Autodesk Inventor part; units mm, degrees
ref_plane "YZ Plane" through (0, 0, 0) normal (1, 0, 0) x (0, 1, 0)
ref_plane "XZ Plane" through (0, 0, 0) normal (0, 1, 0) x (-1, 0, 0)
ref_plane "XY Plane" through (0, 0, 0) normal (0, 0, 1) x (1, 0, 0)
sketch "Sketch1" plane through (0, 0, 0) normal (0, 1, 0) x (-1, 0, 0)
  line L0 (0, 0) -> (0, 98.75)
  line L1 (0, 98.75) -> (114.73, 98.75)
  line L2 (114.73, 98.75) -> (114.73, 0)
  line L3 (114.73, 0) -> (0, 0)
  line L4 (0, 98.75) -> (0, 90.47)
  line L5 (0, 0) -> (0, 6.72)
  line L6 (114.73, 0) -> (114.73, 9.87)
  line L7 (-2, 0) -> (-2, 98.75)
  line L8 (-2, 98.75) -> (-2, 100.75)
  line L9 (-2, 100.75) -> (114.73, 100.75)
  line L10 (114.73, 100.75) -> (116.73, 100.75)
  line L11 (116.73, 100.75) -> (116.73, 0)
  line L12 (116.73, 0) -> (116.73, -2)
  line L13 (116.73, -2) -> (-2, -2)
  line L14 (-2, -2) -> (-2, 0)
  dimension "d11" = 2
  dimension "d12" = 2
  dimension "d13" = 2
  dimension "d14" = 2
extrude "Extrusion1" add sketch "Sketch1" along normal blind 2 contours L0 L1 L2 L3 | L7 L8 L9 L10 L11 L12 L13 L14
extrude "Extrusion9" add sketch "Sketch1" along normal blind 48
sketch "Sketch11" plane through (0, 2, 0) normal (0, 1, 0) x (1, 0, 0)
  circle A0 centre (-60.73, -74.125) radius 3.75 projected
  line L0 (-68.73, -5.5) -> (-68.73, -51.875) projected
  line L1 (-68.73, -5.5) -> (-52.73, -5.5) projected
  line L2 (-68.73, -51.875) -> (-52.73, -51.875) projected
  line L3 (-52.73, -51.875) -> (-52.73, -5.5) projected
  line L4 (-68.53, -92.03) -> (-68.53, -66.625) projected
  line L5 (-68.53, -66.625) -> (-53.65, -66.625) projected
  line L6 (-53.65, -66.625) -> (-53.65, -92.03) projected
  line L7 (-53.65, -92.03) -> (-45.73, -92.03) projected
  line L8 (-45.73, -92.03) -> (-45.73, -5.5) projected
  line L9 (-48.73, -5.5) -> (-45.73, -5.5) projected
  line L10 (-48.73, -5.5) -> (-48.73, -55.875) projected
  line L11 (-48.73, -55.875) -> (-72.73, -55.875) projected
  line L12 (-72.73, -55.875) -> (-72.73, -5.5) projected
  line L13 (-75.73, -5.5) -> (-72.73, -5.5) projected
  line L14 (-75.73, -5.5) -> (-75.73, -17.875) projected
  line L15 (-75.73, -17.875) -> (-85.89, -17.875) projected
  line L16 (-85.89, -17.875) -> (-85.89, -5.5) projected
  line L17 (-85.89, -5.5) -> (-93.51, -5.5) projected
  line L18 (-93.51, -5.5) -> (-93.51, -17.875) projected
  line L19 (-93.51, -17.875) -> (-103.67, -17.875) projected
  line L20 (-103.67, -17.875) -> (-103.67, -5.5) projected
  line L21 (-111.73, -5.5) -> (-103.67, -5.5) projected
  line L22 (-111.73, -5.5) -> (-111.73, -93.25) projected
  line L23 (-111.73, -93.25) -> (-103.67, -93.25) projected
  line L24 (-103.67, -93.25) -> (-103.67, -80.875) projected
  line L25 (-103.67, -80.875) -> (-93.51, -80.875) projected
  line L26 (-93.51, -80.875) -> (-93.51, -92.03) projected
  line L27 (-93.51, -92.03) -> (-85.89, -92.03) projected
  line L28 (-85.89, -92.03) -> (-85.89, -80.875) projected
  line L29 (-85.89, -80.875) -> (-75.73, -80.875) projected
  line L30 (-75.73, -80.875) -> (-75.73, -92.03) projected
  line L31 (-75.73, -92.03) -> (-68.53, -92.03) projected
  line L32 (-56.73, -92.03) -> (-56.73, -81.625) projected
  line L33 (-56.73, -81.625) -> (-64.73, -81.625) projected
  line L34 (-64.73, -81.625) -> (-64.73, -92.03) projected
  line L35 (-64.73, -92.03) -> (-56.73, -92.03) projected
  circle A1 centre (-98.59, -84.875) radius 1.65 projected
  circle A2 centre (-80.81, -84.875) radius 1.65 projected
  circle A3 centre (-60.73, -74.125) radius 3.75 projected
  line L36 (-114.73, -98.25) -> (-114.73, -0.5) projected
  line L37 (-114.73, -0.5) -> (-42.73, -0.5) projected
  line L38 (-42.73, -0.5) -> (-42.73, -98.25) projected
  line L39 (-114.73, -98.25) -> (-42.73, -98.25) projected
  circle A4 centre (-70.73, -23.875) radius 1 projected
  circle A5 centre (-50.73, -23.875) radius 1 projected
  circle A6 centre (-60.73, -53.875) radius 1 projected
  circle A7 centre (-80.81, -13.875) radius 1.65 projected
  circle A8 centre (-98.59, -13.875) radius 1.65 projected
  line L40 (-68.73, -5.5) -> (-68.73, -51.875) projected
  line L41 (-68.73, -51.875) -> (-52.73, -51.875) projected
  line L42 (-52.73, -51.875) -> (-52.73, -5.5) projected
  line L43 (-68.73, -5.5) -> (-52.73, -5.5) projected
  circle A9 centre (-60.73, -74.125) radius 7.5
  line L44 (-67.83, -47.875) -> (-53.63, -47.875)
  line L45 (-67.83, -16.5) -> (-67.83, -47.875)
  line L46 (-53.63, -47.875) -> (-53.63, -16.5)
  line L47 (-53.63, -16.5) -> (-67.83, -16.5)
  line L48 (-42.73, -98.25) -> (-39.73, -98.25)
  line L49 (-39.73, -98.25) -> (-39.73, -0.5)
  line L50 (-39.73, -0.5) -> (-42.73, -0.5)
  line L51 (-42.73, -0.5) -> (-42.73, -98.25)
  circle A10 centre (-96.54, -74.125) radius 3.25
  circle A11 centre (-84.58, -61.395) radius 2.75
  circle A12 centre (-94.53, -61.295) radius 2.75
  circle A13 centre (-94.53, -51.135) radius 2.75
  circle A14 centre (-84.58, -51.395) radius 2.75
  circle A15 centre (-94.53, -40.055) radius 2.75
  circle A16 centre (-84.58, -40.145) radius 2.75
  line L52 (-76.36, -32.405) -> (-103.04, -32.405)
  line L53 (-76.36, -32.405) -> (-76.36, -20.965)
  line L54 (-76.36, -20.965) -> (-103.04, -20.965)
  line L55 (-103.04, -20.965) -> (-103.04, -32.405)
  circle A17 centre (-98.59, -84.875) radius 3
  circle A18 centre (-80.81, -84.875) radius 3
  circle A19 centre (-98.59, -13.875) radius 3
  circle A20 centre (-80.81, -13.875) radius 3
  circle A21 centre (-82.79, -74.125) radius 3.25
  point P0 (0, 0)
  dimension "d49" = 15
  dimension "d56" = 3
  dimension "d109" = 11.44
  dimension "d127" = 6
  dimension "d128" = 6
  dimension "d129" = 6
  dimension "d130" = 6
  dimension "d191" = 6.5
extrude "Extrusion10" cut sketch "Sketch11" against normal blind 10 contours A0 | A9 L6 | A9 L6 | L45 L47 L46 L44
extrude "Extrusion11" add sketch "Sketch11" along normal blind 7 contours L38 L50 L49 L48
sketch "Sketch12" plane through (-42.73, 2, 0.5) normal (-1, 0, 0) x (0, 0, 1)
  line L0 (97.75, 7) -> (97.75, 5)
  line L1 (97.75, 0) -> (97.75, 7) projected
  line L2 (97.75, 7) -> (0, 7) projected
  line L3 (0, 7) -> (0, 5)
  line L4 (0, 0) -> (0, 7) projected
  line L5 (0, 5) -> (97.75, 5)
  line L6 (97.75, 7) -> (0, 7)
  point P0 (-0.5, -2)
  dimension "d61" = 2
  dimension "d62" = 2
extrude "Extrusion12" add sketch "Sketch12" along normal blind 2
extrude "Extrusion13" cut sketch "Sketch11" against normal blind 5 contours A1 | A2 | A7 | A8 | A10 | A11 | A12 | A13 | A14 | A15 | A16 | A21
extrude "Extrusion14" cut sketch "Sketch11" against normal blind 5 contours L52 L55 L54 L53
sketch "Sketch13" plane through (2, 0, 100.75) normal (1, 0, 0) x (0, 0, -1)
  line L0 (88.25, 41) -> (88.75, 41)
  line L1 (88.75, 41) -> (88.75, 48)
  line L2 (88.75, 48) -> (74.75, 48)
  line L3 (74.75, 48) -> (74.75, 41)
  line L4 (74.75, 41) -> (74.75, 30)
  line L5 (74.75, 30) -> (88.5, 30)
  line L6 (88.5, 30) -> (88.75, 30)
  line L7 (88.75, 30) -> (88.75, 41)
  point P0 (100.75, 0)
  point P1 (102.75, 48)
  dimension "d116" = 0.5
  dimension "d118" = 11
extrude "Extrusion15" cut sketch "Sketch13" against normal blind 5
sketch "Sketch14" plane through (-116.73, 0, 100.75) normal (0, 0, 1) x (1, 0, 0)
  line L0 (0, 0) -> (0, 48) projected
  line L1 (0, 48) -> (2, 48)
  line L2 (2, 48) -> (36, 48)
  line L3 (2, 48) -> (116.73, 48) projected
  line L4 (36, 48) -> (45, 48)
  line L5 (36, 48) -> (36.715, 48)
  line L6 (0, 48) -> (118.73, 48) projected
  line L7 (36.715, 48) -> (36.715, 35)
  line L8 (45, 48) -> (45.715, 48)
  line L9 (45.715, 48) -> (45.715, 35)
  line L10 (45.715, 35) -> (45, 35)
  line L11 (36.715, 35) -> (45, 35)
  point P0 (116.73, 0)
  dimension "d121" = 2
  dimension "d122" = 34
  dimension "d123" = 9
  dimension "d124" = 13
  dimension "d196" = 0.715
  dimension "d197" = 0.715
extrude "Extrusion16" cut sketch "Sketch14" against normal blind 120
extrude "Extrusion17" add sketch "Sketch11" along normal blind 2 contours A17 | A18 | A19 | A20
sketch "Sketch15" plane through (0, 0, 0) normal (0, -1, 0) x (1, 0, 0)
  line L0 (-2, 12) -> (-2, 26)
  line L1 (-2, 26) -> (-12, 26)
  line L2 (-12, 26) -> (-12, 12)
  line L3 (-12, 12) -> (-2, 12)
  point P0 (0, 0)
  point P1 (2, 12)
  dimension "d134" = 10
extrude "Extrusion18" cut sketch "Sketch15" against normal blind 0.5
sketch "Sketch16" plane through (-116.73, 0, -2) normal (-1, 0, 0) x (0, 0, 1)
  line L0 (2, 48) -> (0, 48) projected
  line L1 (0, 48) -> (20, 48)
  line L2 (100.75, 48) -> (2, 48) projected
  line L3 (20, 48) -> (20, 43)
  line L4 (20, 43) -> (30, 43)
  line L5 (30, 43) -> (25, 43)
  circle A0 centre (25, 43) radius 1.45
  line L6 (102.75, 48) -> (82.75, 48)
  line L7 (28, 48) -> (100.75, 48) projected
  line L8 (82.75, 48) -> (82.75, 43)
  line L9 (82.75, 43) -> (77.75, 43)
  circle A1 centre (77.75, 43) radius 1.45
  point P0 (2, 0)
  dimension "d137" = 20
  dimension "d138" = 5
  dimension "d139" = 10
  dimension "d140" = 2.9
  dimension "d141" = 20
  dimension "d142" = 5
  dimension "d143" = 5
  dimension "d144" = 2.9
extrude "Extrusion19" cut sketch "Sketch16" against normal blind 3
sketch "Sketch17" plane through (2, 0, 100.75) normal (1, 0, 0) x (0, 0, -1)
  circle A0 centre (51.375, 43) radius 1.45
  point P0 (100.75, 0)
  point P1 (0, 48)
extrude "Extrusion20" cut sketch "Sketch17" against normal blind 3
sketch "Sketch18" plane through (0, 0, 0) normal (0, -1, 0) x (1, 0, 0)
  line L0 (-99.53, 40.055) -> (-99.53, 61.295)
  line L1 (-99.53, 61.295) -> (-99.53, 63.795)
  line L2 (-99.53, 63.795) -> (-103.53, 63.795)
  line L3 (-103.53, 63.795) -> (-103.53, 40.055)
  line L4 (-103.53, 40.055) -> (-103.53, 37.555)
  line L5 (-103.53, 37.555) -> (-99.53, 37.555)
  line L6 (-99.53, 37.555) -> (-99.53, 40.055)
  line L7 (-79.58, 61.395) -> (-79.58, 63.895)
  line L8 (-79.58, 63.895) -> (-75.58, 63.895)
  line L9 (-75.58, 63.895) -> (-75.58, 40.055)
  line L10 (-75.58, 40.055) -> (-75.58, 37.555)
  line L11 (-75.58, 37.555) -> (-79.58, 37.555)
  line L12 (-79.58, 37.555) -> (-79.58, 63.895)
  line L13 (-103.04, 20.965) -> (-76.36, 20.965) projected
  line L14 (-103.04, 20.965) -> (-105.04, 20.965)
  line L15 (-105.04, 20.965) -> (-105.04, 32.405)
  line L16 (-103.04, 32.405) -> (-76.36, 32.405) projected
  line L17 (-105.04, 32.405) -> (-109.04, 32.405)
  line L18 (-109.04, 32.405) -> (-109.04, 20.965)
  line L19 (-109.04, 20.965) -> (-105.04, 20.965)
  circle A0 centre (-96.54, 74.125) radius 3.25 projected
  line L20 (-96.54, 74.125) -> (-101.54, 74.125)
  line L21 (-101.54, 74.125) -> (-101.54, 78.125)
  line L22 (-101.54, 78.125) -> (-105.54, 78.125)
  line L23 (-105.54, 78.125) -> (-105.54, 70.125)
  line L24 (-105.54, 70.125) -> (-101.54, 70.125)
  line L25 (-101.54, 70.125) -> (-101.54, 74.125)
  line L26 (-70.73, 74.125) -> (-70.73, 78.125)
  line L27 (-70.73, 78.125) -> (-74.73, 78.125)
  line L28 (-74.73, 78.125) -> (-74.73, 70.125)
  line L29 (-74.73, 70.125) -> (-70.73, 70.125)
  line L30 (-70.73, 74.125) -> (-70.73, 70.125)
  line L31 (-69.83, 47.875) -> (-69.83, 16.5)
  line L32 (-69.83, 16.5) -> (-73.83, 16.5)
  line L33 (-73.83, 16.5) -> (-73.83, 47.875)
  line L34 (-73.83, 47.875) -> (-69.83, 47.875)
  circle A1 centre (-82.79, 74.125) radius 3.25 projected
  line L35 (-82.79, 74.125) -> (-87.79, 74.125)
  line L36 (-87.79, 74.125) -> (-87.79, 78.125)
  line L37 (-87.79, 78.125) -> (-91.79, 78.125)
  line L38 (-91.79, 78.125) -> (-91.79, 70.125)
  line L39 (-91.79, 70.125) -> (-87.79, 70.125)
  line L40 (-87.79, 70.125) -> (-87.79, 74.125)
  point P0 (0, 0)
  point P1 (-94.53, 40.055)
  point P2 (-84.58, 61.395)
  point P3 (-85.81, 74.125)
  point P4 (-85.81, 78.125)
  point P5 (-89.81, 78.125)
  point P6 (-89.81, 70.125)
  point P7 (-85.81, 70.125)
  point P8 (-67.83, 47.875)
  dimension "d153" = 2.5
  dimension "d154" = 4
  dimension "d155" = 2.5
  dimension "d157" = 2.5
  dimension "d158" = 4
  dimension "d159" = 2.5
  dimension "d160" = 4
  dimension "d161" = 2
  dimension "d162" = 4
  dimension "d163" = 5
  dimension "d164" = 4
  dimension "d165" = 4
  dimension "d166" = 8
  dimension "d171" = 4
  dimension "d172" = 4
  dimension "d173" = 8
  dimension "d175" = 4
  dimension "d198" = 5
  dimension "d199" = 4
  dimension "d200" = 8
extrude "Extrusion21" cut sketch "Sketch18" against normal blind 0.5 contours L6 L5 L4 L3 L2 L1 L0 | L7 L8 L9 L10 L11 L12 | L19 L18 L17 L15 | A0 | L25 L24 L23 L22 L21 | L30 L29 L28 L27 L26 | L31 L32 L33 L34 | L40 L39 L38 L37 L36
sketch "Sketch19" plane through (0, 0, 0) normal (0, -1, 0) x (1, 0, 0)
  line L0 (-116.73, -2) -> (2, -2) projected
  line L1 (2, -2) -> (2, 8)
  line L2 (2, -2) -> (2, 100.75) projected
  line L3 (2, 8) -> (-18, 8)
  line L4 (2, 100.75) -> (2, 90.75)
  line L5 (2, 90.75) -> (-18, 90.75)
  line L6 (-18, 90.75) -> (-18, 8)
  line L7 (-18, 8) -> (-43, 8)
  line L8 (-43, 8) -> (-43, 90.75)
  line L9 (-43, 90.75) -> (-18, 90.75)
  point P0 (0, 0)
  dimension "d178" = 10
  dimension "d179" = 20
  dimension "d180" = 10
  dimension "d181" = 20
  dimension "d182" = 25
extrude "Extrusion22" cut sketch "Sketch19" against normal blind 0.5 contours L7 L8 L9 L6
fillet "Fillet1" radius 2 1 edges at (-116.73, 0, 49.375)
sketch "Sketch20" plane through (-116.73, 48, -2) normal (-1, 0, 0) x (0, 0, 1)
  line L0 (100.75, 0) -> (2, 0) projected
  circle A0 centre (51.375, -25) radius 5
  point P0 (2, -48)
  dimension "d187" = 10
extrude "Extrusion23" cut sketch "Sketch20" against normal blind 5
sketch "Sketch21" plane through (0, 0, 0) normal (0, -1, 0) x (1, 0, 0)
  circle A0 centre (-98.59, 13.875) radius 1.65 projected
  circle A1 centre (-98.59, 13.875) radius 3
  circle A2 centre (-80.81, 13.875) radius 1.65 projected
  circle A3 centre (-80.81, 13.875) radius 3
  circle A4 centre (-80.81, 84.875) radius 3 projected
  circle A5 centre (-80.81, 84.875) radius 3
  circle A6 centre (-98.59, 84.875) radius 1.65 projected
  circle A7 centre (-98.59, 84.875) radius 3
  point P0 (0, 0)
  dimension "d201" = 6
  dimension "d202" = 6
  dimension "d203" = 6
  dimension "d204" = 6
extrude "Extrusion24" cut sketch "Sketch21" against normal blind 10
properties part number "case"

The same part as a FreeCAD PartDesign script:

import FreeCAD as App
import Part
import Sketcher
from FreeCAD import Vector


def edges_at(feature, points):
    """Names of the edges that pass closest to the given points."""
    edges = feature.Shape.Edges
    near = lambda p: min(range(len(edges)), key=lambda i: edges[i].distToShape(Part.Vertex(*p))[0])
    return sorted({f"Edge{near(p) + 1}" for p in points})

doc = App.newDocument("Part")
params = doc.addObject("Spreadsheet::Sheet", "Params")
for row, (alias, value) in enumerate([
    ("sketch1_width", "118.73 mm"),
    ("sketch1_height", "102.75 mm"),
    ("pad1_length", "2 mm"),
    ("sketch2_width", "118.73 mm"),
    ("sketch2_height", "102.75 mm"),
    ("pad2_length", "48 mm"),
    ("sketch3_diameter", "15 mm"),
    ("sketch3_width", "14.2 mm"),
    ("pocket1_length", "10 mm"),
    ("sketch4_width", "3 mm"),
    ("sketch4_height", "97.75 mm"),
    ("pad3_length", "7 mm"),
    ("sketch5_width", "2 mm"),
    ("sketch5_height", "97.75 mm"),
    ("pad4_length", "2 mm"),
    ("sketch6_diameter", "6.5 mm"),
    ("sketch6_diameter2", "3.3 mm"),
    ("sketch6_diameter3", "5.5 mm"),
    ("pocket2_length", "5 mm"),
    ("sketch7_height", "11.44 mm"),
    ("sketch7_width", "26.68 mm"),
    ("pocket3_length", "5 mm"),
    ("sketch8_width", "18 mm"),
    ("sketch8_height", "14 mm"),
    ("pocket4_length", "5 mm"),
    ("sketch9_width", "9 mm"),
    ("sketch9_height", "13 mm"),
    ("pocket5_length", "120 mm"),
    ("sketch10_diameter", "6 mm"),
    ("sketch10_diameter2", "3.3 mm"),
    ("pad5_length", "2 mm"),
    ("sketch11_width", "10 mm"),
    ("sketch11_height", "14 mm"),
    ("pocket6_length", "0.5 mm"),
    ("sketch12_diameter", "2.9 mm"),
    ("pocket7_length", "3 mm"),
    ("sketch13_diameter", "2.9 mm"),
    ("pocket8_length", "3 mm"),
    ("sketch14_width", "4 mm"),
    ("sketch14_height", "8 mm"),
    ("sketch14_diameter", "6.5 mm"),
    ("sketch14_height2", "26.24 mm"),
    ("sketch14_height3", "26.34 mm"),
    ("pocket9_length", "0.5 mm"),
    ("sketch15_width", "25 mm"),
    ("sketch15_height", "82.75 mm"),
    ("pocket10_length", "0.5 mm"),
    ("fillet_radius", "2 mm"),
    ("sketch16_diameter", "10 mm"),
    ("pocket11_length", "5 mm"),
    ("sketch17_diameter", "6 mm"),
    ("sketch17_diameter2", "3.3 mm"),
    ("pocket12_length", "10 mm"),
], start=1):
    params.set(f"A{row}", alias)
    params.set(f"B{row}", "=" + value)
    params.setAlias(f"B{row}", alias)

body = doc.addObject("PartDesign::Body", "Body")

# Sketch on XZ plane
sketch1 = doc.addObject("Sketcher::SketchObject", "Sketch")
body.addObject(sketch1)
sketch1.AttachmentSupport = (doc.XZ_Plane, [""])
sketch1.MapMode = "FlatFace"
sketch1.addGeometry([
    Part.LineSegment(Vector(2, -2, 0), Vector(-117, -2, 0)),
    Part.LineSegment(Vector(-117, -2, 0), Vector(-117, 101, 0)),
    Part.LineSegment(Vector(-117, 101, 0), Vector(2, 101, 0)),
    Part.LineSegment(Vector(2, 101, 0), Vector(2, -2, 0)),
], False)
sketch1.addConstraint([
    Sketcher.Constraint("Coincident", 0, 2, 1, 1),
    Sketcher.Constraint("Coincident", 1, 2, 2, 1),
    Sketcher.Constraint("Coincident", 2, 2, 3, 1),
    Sketcher.Constraint("Coincident", 3, 2, 0, 1),
    Sketcher.Constraint("Horizontal", 0),
    Sketcher.Constraint("Vertical", 1),
    Sketcher.Constraint("Horizontal", 2),
    Sketcher.Constraint("Vertical", 3),
    Sketcher.Constraint("DistanceY", 0, 2, -1, 1, 2.0),
    Sketcher.Constraint("DistanceX", -1, 1, 2, 2, 2.0),
    Sketcher.Constraint("DistanceX", 0, 2, 0, 1, 118.73),
    Sketcher.Constraint("DistanceY", 1, 1, 1, 2, 102.75),
])
sketch1.setExpression("Constraints[10]", "Params.sketch1_width")
sketch1.setExpression("Constraints[11]", "Params.sketch1_height")
pad1 = doc.addObject("PartDesign::Pad", "Pad")
body.addObject(pad1)
pad1.Profile = sketch1
pad1.setExpression("Length", "Params.pad1_length")
pad1.Reversed = True

# Sketch on XZ plane
sketch2 = doc.addObject("Sketcher::SketchObject", "Sketch001")
body.addObject(sketch2)
sketch2.AttachmentSupport = (doc.XZ_Plane, [""])
sketch2.MapMode = "FlatFace"
sketch2.addGeometry([
    Part.LineSegment(Vector(2, 101, 0), Vector(2, -2, 0)),  # 0
    Part.LineSegment(Vector(2, -2, 0), Vector(-117, -2, 0)),  # 1
    Part.LineSegment(Vector(-117, -2, 0), Vector(-117, 101, 0)),  # 2
    Part.LineSegment(Vector(-117, 101, 0), Vector(2, 101, 0)),  # 3
    Part.LineSegment(Vector(-115, 0, 0), Vector(0, 0, 0)),  # 4
    Part.LineSegment(Vector(0, 0, 0), Vector(0, 99, 0)),  # 5
    Part.LineSegment(Vector(0, 99, 0), Vector(-115, 99, 0)),  # 6
    Part.LineSegment(Vector(-115, 99, 0), Vector(-115, 0, 0)),  # 7
], False)
sketch2.addConstraint([
    Sketcher.Constraint("Coincident", 0, 2, 1, 1),
    Sketcher.Constraint("Coincident", 1, 2, 2, 1),
    Sketcher.Constraint("Coincident", 2, 2, 3, 1),
    Sketcher.Constraint("Coincident", 3, 2, 0, 1),
    Sketcher.Constraint("Coincident", 4, 2, 5, 1),
    Sketcher.Constraint("Coincident", 5, 2, 6, 1),
    Sketcher.Constraint("Coincident", 6, 2, 7, 1),
    Sketcher.Constraint("Coincident", 7, 2, 4, 1),
    Sketcher.Constraint("Vertical", 0),
    Sketcher.Constraint("Horizontal", 1),
    Sketcher.Constraint("Vertical", 2),
    Sketcher.Constraint("Horizontal", 3),
    Sketcher.Constraint("Horizontal", 4),
    Sketcher.Constraint("Vertical", 5),
    Sketcher.Constraint("Horizontal", 6),
    Sketcher.Constraint("Vertical", 7),
    Sketcher.Constraint("Coincident", 4, 2, -1, 1),
    Sketcher.Constraint("DistanceX", -1, 1, 0, 2, 2.0),
    Sketcher.Constraint("DistanceY", 0, 2, -1, 1, 2.0),
    Sketcher.Constraint("DistanceY", 5, 2, 3, 2, 2.0),
    Sketcher.Constraint("DistanceX", 2, 2, 6, 2, 2.0),
    Sketcher.Constraint("DistanceX", 1, 2, 1, 1, 118.73),
    Sketcher.Constraint("DistanceY", 0, 2, 0, 1, 102.75),
])
sketch2.setExpression("Constraints[21]", "Params.sketch2_width")
sketch2.setExpression("Constraints[22]", "Params.sketch2_height")
pad2 = doc.addObject("PartDesign::Pad", "Pad001")
body.addObject(pad2)
pad2.Profile = sketch2
pad2.setExpression("Length", "Params.pad2_length")
pad2.Reversed = True

# Sketch on XZ plane
sketch3 = doc.addObject("Sketcher::SketchObject", "Sketch002")
body.addObject(sketch3)
sketch3.AttachmentSupport = (doc.XZ_Plane, [""])
sketch3.MapMode = "FlatFace"
sketch3.AttachmentOffset = App.Placement(Vector(0, 0, -2), App.Rotation())
sketch3.addGeometry([
    Part.Circle(Vector(-61, 74, 0), Vector(0, 0, 1), 8),  # 0
    Part.LineSegment(Vector(-68, 16, 0), Vector(-68, 48, 0)),  # 1
    Part.LineSegment(Vector(-68, 48, 0), Vector(-54, 48, 0)),  # 2
    Part.LineSegment(Vector(-54, 48, 0), Vector(-54, 16, 0)),  # 3
    Part.LineSegment(Vector(-54, 16, 0), Vector(-68, 16, 0)),  # 4
], False)
sketch3.addConstraint([
    Sketcher.Constraint("Coincident", 1, 2, 2, 1),
    Sketcher.Constraint("Coincident", 2, 2, 3, 1),
    Sketcher.Constraint("Coincident", 3, 2, 4, 1),
    Sketcher.Constraint("Coincident", 4, 2, 1, 1),
    Sketcher.Constraint("Vertical", 1),
    Sketcher.Constraint("Horizontal", 2),
    Sketcher.Constraint("Vertical", 3),
    Sketcher.Constraint("Horizontal", 4),
    Sketcher.Constraint("Diameter", 0, 15.0),
    Sketcher.Constraint("DistanceX", 2, 1, 2, 2, 14.2),
    Sketcher.Constraint("DistanceY", -1, 1, 3, 2, 16.5),
    Sketcher.Constraint("DistanceX", 1, 2, 0, 3, 7.1),
    Sketcher.Constraint("DistanceY", 1, 1, 1, 2, 31.375),
    Sketcher.Constraint("DistanceX", 0, 3, -1, 1, 60.73),
    Sketcher.Constraint("DistanceY", 1, 2, 0, 3, 26.25),
])
sketch3.setExpression("Constraints[8]", "Params.sketch3_diameter")
sketch3.setExpression("Constraints[9]", "Params.sketch3_width")
pocket1 = doc.addObject("PartDesign::Pocket", "Pocket")
body.addObject(pocket1)
pocket1.Profile = sketch3
pocket1.setExpression("Length", "Params.pocket1_length")
pocket1.Reversed = True

# Sketch on XZ plane
sketch4 = doc.addObject("Sketcher::SketchObject", "Sketch003")
body.addObject(sketch4)
sketch4.AttachmentSupport = (doc.XZ_Plane, [""])
sketch4.MapMode = "FlatFace"
sketch4.AttachmentOffset = App.Placement(Vector(0, 0, -2), App.Rotation())
sketch4.addGeometry([
    Part.LineSegment(Vector(-42.7, 0.5, 0), Vector(-42.7, 98.2, 0)),
    Part.LineSegment(Vector(-42.7, 98.2, 0), Vector(-39.7, 98.2, 0)),
    Part.LineSegment(Vector(-39.7, 98.2, 0), Vector(-39.7, 0.5, 0)),
    Part.LineSegment(Vector(-39.7, 0.5, 0), Vector(-42.7, 0.5, 0)),
], False)
sketch4.addConstraint([
    Sketcher.Constraint("Coincident", 0, 2, 1, 1),
    Sketcher.Constraint("Coincident", 1, 2, 2, 1),
    Sketcher.Constraint("Coincident", 2, 2, 3, 1),
    Sketcher.Constraint("Coincident", 3, 2, 0, 1),
    Sketcher.Constraint("Vertical", 0),
    Sketcher.Constraint("Horizontal", 1),
    Sketcher.Constraint("Vertical", 2),
    Sketcher.Constraint("Horizontal", 3),
    Sketcher.Constraint("DistanceX", 1, 1, 1, 2, 3.0),
    Sketcher.Constraint("DistanceY", 0, 1, 0, 2, 97.75),
    Sketcher.Constraint("DistanceY", -1, 1, 2, 2, 0.5),
    Sketcher.Constraint("DistanceX", 0, 2, -1, 1, 42.73),
])
sketch4.setExpression("Constraints[8]", "Params.sketch4_width")
sketch4.setExpression("Constraints[9]", "Params.sketch4_height")
pad3 = doc.addObject("PartDesign::Pad", "Pad002")
body.addObject(pad3)
pad3.Profile = sketch4
pad3.setExpression("Length", "Params.pad3_length")
pad3.Reversed = True

# Sketch on YZ plane
sketch5 = doc.addObject("Sketcher::SketchObject", "Sketch004")
body.addObject(sketch5)
sketch5.AttachmentSupport = (doc.YZ_Plane, [""])
sketch5.MapMode = "FlatFace"
sketch5.AttachmentOffset = App.Placement(Vector(0, 0, -42.73), App.Rotation())
sketch5.addGeometry([
    Part.LineSegment(Vector(7, 98.2, 0), Vector(9, 98.2, 0)),
    Part.LineSegment(Vector(9, 98.2, 0), Vector(9, 0.5, 0)),
    Part.LineSegment(Vector(9, 0.5, 0), Vector(7, 0.5, 0)),
    Part.LineSegment(Vector(7, 0.5, 0), Vector(7, 98.2, 0)),
], False)
sketch5.addConstraint([
    Sketcher.Constraint("Coincident", 0, 2, 1, 1),
    Sketcher.Constraint("Coincident", 1, 2, 2, 1),
    Sketcher.Constraint("Coincident", 2, 2, 3, 1),
    Sketcher.Constraint("Coincident", 3, 2, 0, 1),
    Sketcher.Constraint("Horizontal", 0),
    Sketcher.Constraint("Vertical", 1),
    Sketcher.Constraint("Horizontal", 2),
    Sketcher.Constraint("Vertical", 3),
    Sketcher.Constraint("DistanceX", 0, 1, 0, 2, 2.0),
    Sketcher.Constraint("DistanceX", -1, 1, 0, 2, 9.0),
    Sketcher.Constraint("DistanceY", 1, 2, 1, 1, 97.75),
    Sketcher.Constraint("DistanceY", -1, 1, 1, 2, 0.5),
])
sketch5.setExpression("Constraints[8]", "Params.sketch5_width")
sketch5.setExpression("Constraints[10]", "Params.sketch5_height")
pad4 = doc.addObject("PartDesign::Pad", "Pad003")
body.addObject(pad4)
pad4.Profile = sketch5
pad4.setExpression("Length", "Params.pad4_length")
pad4.Reversed = True

# Sketch on XZ plane
sketch6 = doc.addObject("Sketcher::SketchObject", "Sketch005")
body.addObject(sketch6)
sketch6.AttachmentSupport = (doc.XZ_Plane, [""])
sketch6.MapMode = "FlatFace"
sketch6.AttachmentOffset = App.Placement(Vector(0, 0, -2), App.Rotation())
sketch6.addGeometry([
    Part.Circle(Vector(-98.6, 84.9, 0), Vector(0, 0, 1), 1.6),  # 0
    Part.Circle(Vector(-80.8, 84.9, 0), Vector(0, 0, 1), 1.6),  # 1
    Part.Circle(Vector(-80.8, 13.9, 0), Vector(0, 0, 1), 1.6),  # 2
    Part.Circle(Vector(-98.6, 13.9, 0), Vector(0, 0, 1), 1.6),  # 3
    Part.Circle(Vector(-96.5, 74.1, 0), Vector(0, 0, 1), 3.2),  # 4
    Part.Circle(Vector(-84.6, 61.4, 0), Vector(0, 0, 1), 2.8),  # 5
    Part.Circle(Vector(-94.5, 61.3, 0), Vector(0, 0, 1), 2.8),  # 6
    Part.Circle(Vector(-94.5, 51.1, 0), Vector(0, 0, 1), 2.8),  # 7
    Part.Circle(Vector(-84.6, 51.4, 0), Vector(0, 0, 1), 2.8),  # 8
    Part.Circle(Vector(-94.5, 40.1, 0), Vector(0, 0, 1), 2.8),  # 9
    Part.Circle(Vector(-84.6, 40.1, 0), Vector(0, 0, 1), 2.8),  # 10
    Part.Circle(Vector(-82.8, 74.1, 0), Vector(0, 0, 1), 3.2),  # 11
], False)
sketch6.addConstraint([
    Sketcher.Constraint("Equal", 0, 1),
    Sketcher.Constraint("Equal", 1, 2),
    Sketcher.Constraint("Equal", 2, 3),
    Sketcher.Constraint("Equal", 5, 6),
    Sketcher.Constraint("Equal", 6, 7),
    Sketcher.Constraint("Equal", 7, 8),
    Sketcher.Constraint("Equal", 8, 9),
    Sketcher.Constraint("Equal", 9, 10),
    Sketcher.Constraint("Equal", 4, 11),
    Sketcher.Constraint("Horizontal", 0, 3, 1, 3),
    Sketcher.Constraint("Horizontal", 2, 3, 3, 3),
    Sketcher.Constraint("Horizontal", 4, 3, 11, 3),
    Sketcher.Constraint("Vertical", 1, 3, 2, 3),
    Sketcher.Constraint("Vertical", 0, 3, 3, 3),
    Sketcher.Constraint("Vertical", 6, 3, 7, 3),
    Sketcher.Constraint("Vertical", 5, 3, 8, 3),
    Sketcher.Constraint("Vertical", 7, 3, 9, 3),
    Sketcher.Constraint("Vertical", 8, 3, 10, 3),
    Sketcher.Constraint("Diameter", 4, 6.5),
    Sketcher.Constraint("Diameter", 0, 3.3),
    Sketcher.Constraint("Diameter", 5, 5.5),
    Sketcher.Constraint("DistanceY", 2, 3, 1, 3, 71.0),
    Sketcher.Constraint("DistanceY", 8, 3, 5, 3, 10.0),
    Sketcher.Constraint("DistanceY", 6, 3, 5, 3, 0.1),
    Sketcher.Constraint("DistanceX", 0, 3, 11, 3, 15.8),
    Sketcher.Constraint("DistanceX", 0, 3, -1, 1, 98.59),
    Sketcher.Constraint("DistanceX", 1, 3, -1, 1, 80.81),
    Sketcher.Constraint("DistanceX", 4, 3, -1, 1, 96.54),
    Sketcher.Constraint("DistanceX", 5, 3, -1, 1, 84.58),
    Sketcher.Constraint("DistanceX", 6, 3, -1, 1, 94.53),
    Sketcher.Constraint("DistanceY", 4, 3, 0, 3, 10.75),
    Sketcher.Constraint("DistanceY", 5, 3, 4, 3, 12.73),
    Sketcher.Constraint("DistanceY", 7, 3, 6, 3, 10.16),
    Sketcher.Constraint("DistanceY", 9, 3, 7, 3, 11.08),
    Sketcher.Constraint("DistanceY", 9, 3, 10, 3, 0.09),
    Sketcher.Constraint("DistanceY", -1, 1, 0, 3, 84.875),
])
sketch6.setExpression("Constraints[18]", "Params.sketch6_diameter")
sketch6.setExpression("Constraints[19]", "Params.sketch6_diameter2")
sketch6.setExpression("Constraints[20]", "Params.sketch6_diameter3")
pocket2 = doc.addObject("PartDesign::Pocket", "Pocket001")
body.addObject(pocket2)
pocket2.Profile = sketch6
pocket2.setExpression("Length", "Params.pocket2_length")
pocket2.Reversed = True

# Sketch on XZ plane
sketch7 = doc.addObject("Sketcher::SketchObject", "Sketch006")
body.addObject(sketch7)
sketch7.AttachmentSupport = (doc.XZ_Plane, [""])
sketch7.MapMode = "FlatFace"
sketch7.AttachmentOffset = App.Placement(Vector(0, 0, -2), App.Rotation())
sketch7.addGeometry([
    Part.LineSegment(Vector(-103, 32, 0), Vector(-76, 32, 0)),
    Part.LineSegment(Vector(-76, 32, 0), Vector(-76, 21, 0)),
    Part.LineSegment(Vector(-76, 21, 0), Vector(-103, 21, 0)),
    Part.LineSegment(Vector(-103, 21, 0), Vector(-103, 32, 0)),
], False)
sketch7.addConstraint([
    Sketcher.Constraint("Coincident", 0, 2, 1, 1),
    Sketcher.Constraint("Coincident", 1, 2, 2, 1),
    Sketcher.Constraint("Coincident", 2, 2, 3, 1),
    Sketcher.Constraint("Coincident", 3, 2, 0, 1),
    Sketcher.Constraint("Horizontal", 0),
    Sketcher.Constraint("Vertical", 1),
    Sketcher.Constraint("Horizontal", 2),
    Sketcher.Constraint("Vertical", 3),
    Sketcher.Constraint("DistanceY", 1, 2, 1, 1, 11.44),
    Sketcher.Constraint("DistanceX", 0, 1, 0, 2, 26.68),
    Sketcher.Constraint("DistanceX", 0, 2, -1, 1, 76.36),
    Sketcher.Constraint("DistanceY", -1, 1, 0, 2, 32.405),
])
sketch7.setExpression("Constraints[8]", "Params.sketch7_height")
sketch7.setExpression("Constraints[9]", "Params.sketch7_width")
pocket3 = doc.addObject("PartDesign::Pocket", "Pocket002")
body.addObject(pocket3)
pocket3.Profile = sketch7
pocket3.setExpression("Length", "Params.pocket3_length")
pocket3.Reversed = True

# Sketch on YZ plane
sketch8 = doc.addObject("Sketcher::SketchObject", "Sketch007")
body.addObject(sketch8)
sketch8.AttachmentSupport = (doc.YZ_Plane, [""])
sketch8.MapMode = "FlatFace"
sketch8.AttachmentOffset = App.Placement(Vector(0, 0, 2), App.Rotation())
sketch8.addGeometry([
    Part.LineSegment(Vector(30, 12, 0), Vector(48, 12, 0)),
    Part.LineSegment(Vector(48, 12, 0), Vector(48, 26, 0)),
    Part.LineSegment(Vector(48, 26, 0), Vector(30, 26, 0)),
    Part.LineSegment(Vector(30, 26, 0), Vector(30, 12, 0)),
], False)
sketch8.addConstraint([
    Sketcher.Constraint("Coincident", 0, 2, 1, 1),
    Sketcher.Constraint("Coincident", 1, 2, 2, 1),
    Sketcher.Constraint("Coincident", 2, 2, 3, 1),
    Sketcher.Constraint("Coincident", 3, 2, 0, 1),
    Sketcher.Constraint("Horizontal", 0),
    Sketcher.Constraint("Vertical", 1),
    Sketcher.Constraint("Horizontal", 2),
    Sketcher.Constraint("Vertical", 3),
    Sketcher.Constraint("DistanceX", 0, 1, 0, 2, 18.0),
    Sketcher.Constraint("DistanceY", 1, 1, 1, 2, 14.0),
    Sketcher.Constraint("DistanceX", -1, 1, 0, 2, 48.0),
    Sketcher.Constraint("DistanceY", -1, 1, 0, 2, 12.0),
])
sketch8.setExpression("Constraints[8]", "Params.sketch8_width")
sketch8.setExpression("Constraints[9]", "Params.sketch8_height")
pocket4 = doc.addObject("PartDesign::Pocket", "Pocket003")
body.addObject(pocket4)
pocket4.Profile = sketch8
pocket4.setExpression("Length", "Params.pocket4_length")

# Sketch on XY plane
sketch9 = doc.addObject("Sketcher::SketchObject", "Sketch008")
body.addObject(sketch9)
sketch9.AttachmentSupport = (doc.XY_Plane, [""])
sketch9.MapMode = "FlatFace"
sketch9.AttachmentOffset = App.Placement(Vector(0, 0, 100.75), App.Rotation())
sketch9.addGeometry([
    Part.LineSegment(Vector(-71, 48, 0), Vector(-80, 48, 0)),
    Part.LineSegment(Vector(-80, 48, 0), Vector(-80, 35, 0)),
    Part.LineSegment(Vector(-80, 35, 0), Vector(-71, 35, 0)),
    Part.LineSegment(Vector(-71, 35, 0), Vector(-71, 48, 0)),
], False)
sketch9.addConstraint([
    Sketcher.Constraint("Coincident", 0, 2, 1, 1),
    Sketcher.Constraint("Coincident", 1, 2, 2, 1),
    Sketcher.Constraint("Coincident", 2, 2, 3, 1),
    Sketcher.Constraint("Coincident", 3, 2, 0, 1),
    Sketcher.Constraint("Horizontal", 0),
    Sketcher.Constraint("Vertical", 1),
    Sketcher.Constraint("Horizontal", 2),
    Sketcher.Constraint("Vertical", 3),
    Sketcher.Constraint("DistanceX", 0, 2, 0, 1, 9.0),
    Sketcher.Constraint("DistanceY", 1, 2, 1, 1, 13.0),
    Sketcher.Constraint("DistanceY", -1, 1, 0, 2, 48.0),
    Sketcher.Constraint("DistanceX", 0, 2, -1, 1, 80.015),
])
sketch9.setExpression("Constraints[8]", "Params.sketch9_width")
sketch9.setExpression("Constraints[9]", "Params.sketch9_height")
pocket5 = doc.addObject("PartDesign::Pocket", "Pocket004")
body.addObject(pocket5)
pocket5.Profile = sketch9
pocket5.setExpression("Length", "Params.pocket5_length")

# Sketch on XZ plane
sketch10 = doc.addObject("Sketcher::SketchObject", "Sketch009")
body.addObject(sketch10)
sketch10.AttachmentSupport = (doc.XZ_Plane, [""])
sketch10.MapMode = "FlatFace"
sketch10.AttachmentOffset = App.Placement(Vector(0, 0, -2), App.Rotation())
sketch10.addGeometry([
    Part.Circle(Vector(-98.6, 84.9, 0), Vector(0, 0, 1), 3),  # 0
    Part.Circle(Vector(-98.6, 84.9, 0), Vector(0, 0, 1), 1.6),  # 1
    Part.Circle(Vector(-80.8, 84.9, 0), Vector(0, 0, 1), 3),  # 2
    Part.Circle(Vector(-80.8, 84.9, 0), Vector(0, 0, 1), 1.6),  # 3
    Part.Circle(Vector(-98.6, 13.9, 0), Vector(0, 0, 1), 3),  # 4
    Part.Circle(Vector(-98.6, 13.9, 0), Vector(0, 0, 1), 1.6),  # 5
    Part.Circle(Vector(-80.8, 13.9, 0), Vector(0, 0, 1), 3),  # 6
    Part.Circle(Vector(-80.8, 13.9, 0), Vector(0, 0, 1), 1.6),  # 7
], False)
sketch10.addConstraint([
    Sketcher.Constraint("Coincident", 1, 3, 0, 3),
    Sketcher.Constraint("Coincident", 3, 3, 2, 3),
    Sketcher.Constraint("Coincident", 5, 3, 4, 3),
    Sketcher.Constraint("Coincident", 7, 3, 6, 3),
    Sketcher.Constraint("Equal", 0, 2),
    Sketcher.Constraint("Equal", 1, 3),
    Sketcher.Constraint("Equal", 2, 4),
    Sketcher.Constraint("Equal", 3, 5),
    Sketcher.Constraint("Equal", 4, 6),
    Sketcher.Constraint("Equal", 5, 7),
    Sketcher.Constraint("Horizontal", 1, 3, 2, 3),
    Sketcher.Constraint("Horizontal", 5, 3, 6, 3),
    Sketcher.Constraint("Vertical", 1, 3, 4, 3),
    Sketcher.Constraint("Vertical", 3, 3, 6, 3),
    Sketcher.Constraint("Diameter", 0, 6.0),
    Sketcher.Constraint("Diameter", 1, 3.3),
    Sketcher.Constraint("DistanceY", 4, 3, 0, 3, 71.0),
    Sketcher.Constraint("DistanceX", 0, 3, -1, 1, 98.59),
    Sketcher.Constraint("DistanceX", 2, 3, -1, 1, 80.81),
    Sketcher.Constraint("DistanceY", -1, 1, 0, 3, 84.875),
])
sketch10.setExpression("Constraints[14]", "Params.sketch10_diameter")
sketch10.setExpression("Constraints[15]", "Params.sketch10_diameter2")
pad5 = doc.addObject("PartDesign::Pad", "Pad004")
body.addObject(pad5)
pad5.Profile = sketch10
pad5.setExpression("Length", "Params.pad5_length")
pad5.Reversed = True

# Sketch on XZ plane
sketch11 = doc.addObject("Sketcher::SketchObject", "Sketch010")
body.addObject(sketch11)
sketch11.AttachmentSupport = (doc.XZ_Plane, [""])
sketch11.MapMode = "FlatFace"
sketch11.addGeometry([
    Part.LineSegment(Vector(-12, 12, 0), Vector(-2, 12, 0)),
    Part.LineSegment(Vector(-2, 12, 0), Vector(-2, 26, 0)),
    Part.LineSegment(Vector(-2, 26, 0), Vector(-12, 26, 0)),
    Part.LineSegment(Vector(-12, 26, 0), Vector(-12, 12, 0)),
], False)
sketch11.addConstraint([
    Sketcher.Constraint("Coincident", 0, 2, 1, 1),
    Sketcher.Constraint("Coincident", 1, 2, 2, 1),
    Sketcher.Constraint("Coincident", 2, 2, 3, 1),
    Sketcher.Constraint("Coincident", 3, 2, 0, 1),
    Sketcher.Constraint("Horizontal", 0),
    Sketcher.Constraint("Vertical", 1),
    Sketcher.Constraint("Horizontal", 2),
    Sketcher.Constraint("Vertical", 3),
    Sketcher.Constraint("DistanceX", 0, 1, 0, 2, 10.0),
    Sketcher.Constraint("DistanceY", 1, 1, 1, 2, 14.0),
    Sketcher.Constraint("DistanceX", 0, 2, -1, 1, 2.0),
    Sketcher.Constraint("DistanceY", -1, 1, 0, 2, 12.0),
])
sketch11.setExpression("Constraints[8]", "Params.sketch11_width")
sketch11.setExpression("Constraints[9]", "Params.sketch11_height")
pocket6 = doc.addObject("PartDesign::Pocket", "Pocket005")
body.addObject(pocket6)
pocket6.Profile = sketch11
pocket6.setExpression("Length", "Params.pocket6_length")

# Sketch on YZ plane
sketch12 = doc.addObject("Sketcher::SketchObject", "Sketch011")
body.addObject(sketch12)
sketch12.AttachmentSupport = (doc.YZ_Plane, [""])
sketch12.MapMode = "FlatFace"
sketch12.AttachmentOffset = App.Placement(Vector(0, 0, -116.73), App.Rotation())
sketch12.addGeometry([
    Part.Circle(Vector(43, 23, 0), Vector(0, 0, 1), 1.4),
    Part.Circle(Vector(43, 75.8, 0), Vector(0, 0, 1), 1.4),
], False)
sketch12.addConstraint([
    Sketcher.Constraint("Equal", 0, 1),
    Sketcher.Constraint("Vertical", 0, 3, 1, 3),
    Sketcher.Constraint("Diameter", 0, 2.9),
    Sketcher.Constraint("DistanceX", -1, 1, 0, 3, 43.0),
    Sketcher.Constraint("DistanceY", -1, 1, 0, 3, 23.0),
    Sketcher.Constraint("DistanceY", -1, 1, 1, 3, 75.75),
])
sketch12.setExpression("Constraints[2]", "Params.sketch12_diameter")
pocket7 = doc.addObject("PartDesign::Pocket", "Pocket006")
body.addObject(pocket7)
pocket7.Profile = sketch12
pocket7.setExpression("Length", "Params.pocket7_length")
pocket7.Reversed = True

# Sketch on YZ plane
sketch13 = doc.addObject("Sketcher::SketchObject", "Sketch012")
body.addObject(sketch13)
sketch13.AttachmentSupport = (doc.YZ_Plane, [""])
sketch13.MapMode = "FlatFace"
sketch13.AttachmentOffset = App.Placement(Vector(0, 0, 2), App.Rotation())
sketch13.addGeometry(Part.Circle(Vector(43, 49.4, 0), Vector(0, 0, 1), 1.4), False)
sketch13.addConstraint([
    Sketcher.Constraint("Diameter", 0, 2.9),
    Sketcher.Constraint("DistanceX", -1, 1, 0, 3, 43.0),
    Sketcher.Constraint("DistanceY", -1, 1, 0, 3, 49.375),
])
sketch13.setExpression("Constraints[0]", "Params.sketch13_diameter")
pocket8 = doc.addObject("PartDesign::Pocket", "Pocket007")
body.addObject(pocket8)
pocket8.Profile = sketch13
pocket8.setExpression("Length", "Params.pocket8_length")

# Sketch on XZ plane
sketch14 = doc.addObject("Sketcher::SketchObject", "Sketch013")
body.addObject(sketch14)
sketch14.AttachmentSupport = (doc.XZ_Plane, [""])
sketch14.MapMode = "FlatFace"
sketch14.addGeometry([
    Part.LineSegment(Vector(-99.5, 37.6, 0), Vector(-99.5, 63.8, 0)),  # 0
    Part.LineSegment(Vector(-99.5, 63.8, 0), Vector(-103.5, 63.8, 0)),  # 1
    Part.LineSegment(Vector(-103.5, 63.8, 0), Vector(-103.5, 37.6, 0)),  # 2
    Part.LineSegment(Vector(-103.5, 37.6, 0), Vector(-99.5, 37.6, 0)),  # 3
    Part.LineSegment(Vector(-79.6, 63.9, 0), Vector(-79.6, 37.6, 0)),  # 4
    Part.LineSegment(Vector(-79.6, 37.6, 0), Vector(-75.6, 37.6, 0)),  # 5
    Part.LineSegment(Vector(-75.6, 37.6, 0), Vector(-75.6, 63.9, 0)),  # 6
    Part.LineSegment(Vector(-75.6, 63.9, 0), Vector(-79.6, 63.9, 0)),  # 7
    Part.LineSegment(Vector(-109, 21, 0), Vector(-105, 21, 0)),  # 8
    Part.LineSegment(Vector(-105, 21, 0), Vector(-105, 32.4, 0)),  # 9
    Part.LineSegment(Vector(-105, 32.4, 0), Vector(-109, 32.4, 0)),  # 10
    Part.LineSegment(Vector(-109, 32.4, 0), Vector(-109, 21, 0)),  # 11
    Part.Circle(Vector(-96.5, 74.1, 0), Vector(0, 0, 1), 3.2),  # 12
    Part.LineSegment(Vector(-101.5, 70.1, 0), Vector(-101.5, 78.1, 0)),  # 13
    Part.LineSegment(Vector(-101.5, 78.1, 0), Vector(-105.5, 78.1, 0)),  # 14
    Part.LineSegment(Vector(-105.5, 78.1, 0), Vector(-105.5, 70.1, 0)),  # 15
    Part.LineSegment(Vector(-105.5, 70.1, 0), Vector(-101.5, 70.1, 0)),  # 16
    Part.LineSegment(Vector(-70.7, 70.1, 0), Vector(-70.7, 78.1, 0)),  # 17
    Part.LineSegment(Vector(-70.7, 78.1, 0), Vector(-74.7, 78.1, 0)),  # 18
    Part.LineSegment(Vector(-74.7, 78.1, 0), Vector(-74.7, 70.1, 0)),  # 19
    Part.LineSegment(Vector(-74.7, 70.1, 0), Vector(-70.7, 70.1, 0)),  # 20
    Part.LineSegment(Vector(-69.8, 16.5, 0), Vector(-69.8, 47.9, 0)),  # 21
    Part.LineSegment(Vector(-69.8, 47.9, 0), Vector(-73.8, 47.9, 0)),  # 22
    Part.LineSegment(Vector(-73.8, 47.9, 0), Vector(-73.8, 16.5, 0)),  # 23
    Part.LineSegment(Vector(-73.8, 16.5, 0), Vector(-69.8, 16.5, 0)),  # 24
    Part.LineSegment(Vector(-87.8, 70.1, 0), Vector(-87.8, 78.1, 0)),  # 25
    Part.LineSegment(Vector(-87.8, 78.1, 0), Vector(-91.8, 78.1, 0)),  # 26
    Part.LineSegment(Vector(-91.8, 78.1, 0), Vector(-91.8, 70.1, 0)),  # 27
    Part.LineSegment(Vector(-91.8, 70.1, 0), Vector(-87.8, 70.1, 0)),  # 28
], False)
sketch14.addConstraint([
    Sketcher.Constraint("Coincident", 0, 2, 1, 1),
    Sketcher.Constraint("Coincident", 1, 2, 2, 1),
    Sketcher.Constraint("Coincident", 2, 2, 3, 1),
    Sketcher.Constraint("Coincident", 3, 2, 0, 1),
    Sketcher.Constraint("Coincident", 4, 2, 5, 1),
    Sketcher.Constraint("Coincident", 5, 2, 6, 1),
    Sketcher.Constraint("Coincident", 6, 2, 7, 1),
    Sketcher.Constraint("Coincident", 7, 2, 4, 1),
    Sketcher.Constraint("Coincident", 8, 2, 9, 1),
    Sketcher.Constraint("Coincident", 9, 2, 10, 1),
    Sketcher.Constraint("Coincident", 10, 2, 11, 1),
    Sketcher.Constraint("Coincident", 11, 2, 8, 1),
    Sketcher.Constraint("Coincident", 13, 2, 14, 1),
    Sketcher.Constraint("Coincident", 14, 2, 15, 1),
    Sketcher.Constraint("Coincident", 15, 2, 16, 1),
    Sketcher.Constraint("Coincident", 16, 2, 13, 1),
    Sketcher.Constraint("Coincident", 17, 2, 18, 1),
    Sketcher.Constraint("Coincident", 18, 2, 19, 1),
    Sketcher.Constraint("Coincident", 19, 2, 20, 1),
    Sketcher.Constraint("Coincident", 20, 2, 17, 1),
    Sketcher.Constraint("Coincident", 21, 2, 22, 1),
    Sketcher.Constraint("Coincident", 22, 2, 23, 1),
    Sketcher.Constraint("Coincident", 23, 2, 24, 1),
    Sketcher.Constraint("Coincident", 24, 2, 21, 1),
    Sketcher.Constraint("Coincident", 25, 2, 26, 1),
    Sketcher.Constraint("Coincident", 26, 2, 27, 1),
    Sketcher.Constraint("Coincident", 27, 2, 28, 1),
    Sketcher.Constraint("Coincident", 28, 2, 25, 1),
    Sketcher.Constraint("Vertical", 0),
    Sketcher.Constraint("Horizontal", 1),
    Sketcher.Constraint("Vertical", 2),
    Sketcher.Constraint("Horizontal", 3),
    Sketcher.Constraint("Vertical", 4),
    Sketcher.Constraint("Horizontal", 5),
    Sketcher.Constraint("Vertical", 6),
    Sketcher.Constraint("Horizontal", 7),
    Sketcher.Constraint("Horizontal", 8),
    Sketcher.Constraint("Vertical", 9),
    Sketcher.Constraint("Horizontal", 10),
    Sketcher.Constraint("Vertical", 11),
    Sketcher.Constraint("Vertical", 13),
    Sketcher.Constraint("Horizontal", 14),
    Sketcher.Constraint("Vertical", 15),
    Sketcher.Constraint("Horizontal", 16),
    Sketcher.Constraint("Vertical", 17),
    Sketcher.Constraint("Horizontal", 18),
    Sketcher.Constraint("Vertical", 19),
    Sketcher.Constraint("Horizontal", 20),
    Sketcher.Constraint("Vertical", 21),
    Sketcher.Constraint("Horizontal", 22),
    Sketcher.Constraint("Vertical", 23),
    Sketcher.Constraint("Horizontal", 24),
    Sketcher.Constraint("Vertical", 25),
    Sketcher.Constraint("Horizontal", 26),
    Sketcher.Constraint("Vertical", 27),
    Sketcher.Constraint("Horizontal", 28),
    Sketcher.Constraint("Horizontal", 3, 2, 4, 2),
    Sketcher.Constraint("Horizontal", 14, 2, 17, 2),
    Sketcher.Constraint("Horizontal", 16, 2, 19, 2),
    Sketcher.Constraint("Horizontal", 18, 2, 25, 2),
    Sketcher.Constraint("Horizontal", 20, 2, 27, 2),
    Sketcher.Constraint("Equal", 3, 5),
    Sketcher.Constraint("Equal", 7, 8),
    Sketcher.Constraint("Equal", 10, 14),
    Sketcher.Constraint("Equal", 16, 18),
    Sketcher.Constraint("Equal", 20, 22),
    Sketcher.Constraint("Equal", 24, 26),
    Sketcher.Constraint("DistanceX", 1, 2, 1, 1, 4.0),
    Sketcher.Constraint("DistanceY", 13, 1, 13, 2, 8.0),
    Sketcher.Constraint("DistanceX", 13, 2, 12, 3, 5.0),
    Sketcher.Constraint("DistanceY", 12, 3, 13, 2, 4.0),
    Sketcher.Constraint("Diameter", 12, 6.5),
    Sketcher.Constraint("DistanceY", 0, 1, 0, 2, 26.24),
    Sketcher.Constraint("DistanceY", 4, 2, 4, 1, 26.34),
    Sketcher.Constraint("DistanceY", 9, 1, 9, 2, 11.44),
    Sketcher.Constraint("DistanceY", -1, 1, 23, 2, 16.5),
    Sketcher.Constraint("DistanceX", 20, 2, 21, 2, 0.9),
    Sketcher.Constraint("DistanceY", 21, 1, 21, 2, 31.375),
    Sketcher.Constraint("DistanceX", 12, 3, -1, 1, 96.54),
    Sketcher.Constraint("DistanceX", 0, 2, -1, 1, 99.53),
    Sketcher.Constraint("DistanceX", 4, 2, -1, 1, 79.58),
    Sketcher.Constraint("DistanceX", 8, 2, -1, 1, 105.04),
    Sketcher.Constraint("DistanceX", 17, 2, -1, 1, 70.73),
    Sketcher.Constraint("DistanceX", 25, 2, -1, 1, 87.79),
    Sketcher.Constraint("DistanceY", 0, 2, 12, 3, 10.33),
    Sketcher.Constraint("DistanceY", 8, 2, 2, 2, 16.59),
    Sketcher.Constraint("DistanceY", 5, 2, 21, 2, 10.32),
])
sketch14.setExpression("Constraints[67]", "Params.sketch14_width")
sketch14.setExpression("Constraints[68]", "Params.sketch14_height")
sketch14.setExpression("Constraints[71]", "Params.sketch14_diameter")
sketch14.setExpression("Constraints[72]", "Params.sketch14_height2")
sketch14.setExpression("Constraints[73]", "Params.sketch14_height3")
pocket9 = doc.addObject("PartDesign::Pocket", "Pocket008")
body.addObject(pocket9)
pocket9.Profile = sketch14
pocket9.setExpression("Length", "Params.pocket9_length")

# Sketch on XZ plane
sketch15 = doc.addObject("Sketcher::SketchObject", "Sketch014")
body.addObject(sketch15)
sketch15.AttachmentSupport = (doc.XZ_Plane, [""])
sketch15.MapMode = "FlatFace"
sketch15.addGeometry([
    Part.LineSegment(Vector(-43, 8, 0), Vector(-18, 8, 0)),
    Part.LineSegment(Vector(-18, 8, 0), Vector(-18, 91, 0)),
    Part.LineSegment(Vector(-18, 91, 0), Vector(-43, 91, 0)),
    Part.LineSegment(Vector(-43, 91, 0), Vector(-43, 8, 0)),
], False)
sketch15.addConstraint([
    Sketcher.Constraint("Coincident", 0, 2, 1, 1),
    Sketcher.Constraint("Coincident", 1, 2, 2, 1),
    Sketcher.Constraint("Coincident", 2, 2, 3, 1),
    Sketcher.Constraint("Coincident", 3, 2, 0, 1),
    Sketcher.Constraint("Horizontal", 0),
    Sketcher.Constraint("Vertical", 1),
    Sketcher.Constraint("Horizontal", 2),
    Sketcher.Constraint("Vertical", 3),
    Sketcher.Constraint("DistanceX", 0, 1, 0, 2, 25.0),
    Sketcher.Constraint("DistanceX", 0, 2, -1, 1, 18.0),
    Sketcher.Constraint("DistanceY", -1, 1, 0, 2, 8.0),
    Sketcher.Constraint("DistanceY", 1, 1, 1, 2, 82.75),
])
sketch15.setExpression("Constraints[8]", "Params.sketch15_width")
sketch15.setExpression("Constraints[11]", "Params.sketch15_height")
pocket10 = doc.addObject("PartDesign::Pocket", "Pocket009")
body.addObject(pocket10)
pocket10.Profile = sketch15
pocket10.setExpression("Length", "Params.pocket10_length")
doc.recompute()

fillet = doc.addObject("PartDesign::Fillet", "Fillet")
body.addObject(fillet)
fillet.Base = (pocket10, edges_at(pocket10, [(-116.73, 0, 49.375)]))
fillet.setExpression("Radius", "Params.fillet_radius")

# Sketch on YZ plane
sketch16 = doc.addObject("Sketcher::SketchObject", "Sketch015")
body.addObject(sketch16)
sketch16.AttachmentSupport = (doc.YZ_Plane, [""])
sketch16.MapMode = "FlatFace"
sketch16.AttachmentOffset = App.Placement(Vector(0, 0, -116.73), App.Rotation())
sketch16.addGeometry(Part.Circle(Vector(23, 49, 0), Vector(0, 0, 1), 5), False)
sketch16.addConstraint([
    Sketcher.Constraint("Diameter", 0, 10.0),
    Sketcher.Constraint("DistanceX", -1, 1, 0, 3, 23.0),
    Sketcher.Constraint("DistanceY", -1, 1, 0, 3, 49.375),
])
sketch16.setExpression("Constraints[0]", "Params.sketch16_diameter")
pocket11 = doc.addObject("PartDesign::Pocket", "Pocket010")
body.addObject(pocket11)
pocket11.Profile = sketch16
pocket11.setExpression("Length", "Params.pocket11_length")
pocket11.Reversed = True

# Sketch on XZ plane
sketch17 = doc.addObject("Sketcher::SketchObject", "Sketch016")
body.addObject(sketch17)
sketch17.AttachmentSupport = (doc.XZ_Plane, [""])
sketch17.MapMode = "FlatFace"
sketch17.addGeometry([
    Part.Circle(Vector(-98.6, 13.9, 0), Vector(0, 0, 1), 3),  # 0
    Part.Circle(Vector(-98.6, 13.9, 0), Vector(0, 0, 1), 1.6),  # 1
    Part.Circle(Vector(-80.8, 13.9, 0), Vector(0, 0, 1), 3),  # 2
    Part.Circle(Vector(-80.8, 13.9, 0), Vector(0, 0, 1), 1.6),  # 3
    Part.Circle(Vector(-80.8, 84.9, 0), Vector(0, 0, 1), 3),  # 4
    Part.Circle(Vector(-98.6, 84.9, 0), Vector(0, 0, 1), 3),  # 5
    Part.Circle(Vector(-98.6, 84.9, 0), Vector(0, 0, 1), 1.6),  # 6
], False)
sketch17.addConstraint([
    Sketcher.Constraint("Coincident", 1, 3, 0, 3),
    Sketcher.Constraint("Coincident", 3, 3, 2, 3),
    Sketcher.Constraint("Coincident", 6, 3, 5, 3),
    Sketcher.Constraint("Equal", 0, 2),
    Sketcher.Constraint("Equal", 1, 3),
    Sketcher.Constraint("Equal", 2, 4),
    Sketcher.Constraint("Equal", 4, 5),
    Sketcher.Constraint("Equal", 3, 6),
    Sketcher.Constraint("Horizontal", 1, 3, 2, 3),
    Sketcher.Constraint("Horizontal", 4, 3, 5, 3),
    Sketcher.Constraint("Vertical", 3, 3, 4, 3),
    Sketcher.Constraint("Vertical", 1, 3, 5, 3),
    Sketcher.Constraint("Diameter", 0, 6.0),
    Sketcher.Constraint("Diameter", 1, 3.3),
    Sketcher.Constraint("DistanceY", 2, 3, 4, 3, 71.0),
    Sketcher.Constraint("DistanceX", 0, 3, -1, 1, 98.59),
    Sketcher.Constraint("DistanceX", 2, 3, -1, 1, 80.81),
    Sketcher.Constraint("DistanceY", -1, 1, 0, 3, 13.875),
])
sketch17.setExpression("Constraints[12]", "Params.sketch17_diameter")
sketch17.setExpression("Constraints[13]", "Params.sketch17_diameter2")
pocket12 = doc.addObject("PartDesign::Pocket", "Pocket011")
body.addObject(pocket12)
pocket12.Profile = sketch17
pocket12.setExpression("Length", "Params.pocket12_length")

doc.recompute()
